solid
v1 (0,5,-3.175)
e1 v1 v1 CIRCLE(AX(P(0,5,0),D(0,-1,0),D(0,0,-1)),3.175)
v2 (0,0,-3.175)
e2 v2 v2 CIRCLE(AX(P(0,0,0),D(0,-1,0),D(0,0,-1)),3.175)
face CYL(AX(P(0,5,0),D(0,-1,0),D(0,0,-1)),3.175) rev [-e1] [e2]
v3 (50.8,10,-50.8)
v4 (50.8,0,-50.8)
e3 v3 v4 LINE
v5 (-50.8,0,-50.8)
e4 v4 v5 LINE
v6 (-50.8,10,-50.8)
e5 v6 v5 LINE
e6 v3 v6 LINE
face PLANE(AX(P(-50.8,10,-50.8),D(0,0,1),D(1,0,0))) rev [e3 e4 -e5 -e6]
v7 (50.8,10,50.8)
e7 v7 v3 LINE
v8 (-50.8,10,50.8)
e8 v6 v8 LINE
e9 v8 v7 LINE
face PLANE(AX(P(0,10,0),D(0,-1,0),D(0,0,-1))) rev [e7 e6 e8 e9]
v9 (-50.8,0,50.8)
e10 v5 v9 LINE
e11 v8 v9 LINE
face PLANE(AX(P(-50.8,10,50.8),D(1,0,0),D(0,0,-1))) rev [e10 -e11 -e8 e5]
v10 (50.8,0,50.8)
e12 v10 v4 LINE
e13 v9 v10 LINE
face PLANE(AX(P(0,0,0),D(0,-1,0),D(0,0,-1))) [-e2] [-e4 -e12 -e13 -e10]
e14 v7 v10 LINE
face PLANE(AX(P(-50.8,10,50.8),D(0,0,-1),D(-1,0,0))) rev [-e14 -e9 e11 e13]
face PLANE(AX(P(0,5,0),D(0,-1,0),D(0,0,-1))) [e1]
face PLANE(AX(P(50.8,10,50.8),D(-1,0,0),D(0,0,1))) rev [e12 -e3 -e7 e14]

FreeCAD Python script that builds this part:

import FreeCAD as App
import Part
import Sketcher

V = App.Vector

doc = App.newDocument("Part")
body = doc.addObject("PartDesign::Body", "Body")

sketch1 = body.newObject("Sketcher::SketchObject", "Sketch")
sketch1.AttachmentSupport = (doc.getObject("XZ_Plane"), [""])
sketch1.MapMode = "FlatFace"
sketch1.addGeometry([
    Part.LineSegment(V(-50.8, -50.8, 0), V(-50.8, 50.8, 0)),
    Part.LineSegment(V(-50.8, 50.8, 0), V(50.8, 50.8, 0)),
    Part.LineSegment(V(50.8, 50.8, 0), V(50.8, -50.8, 0)),
    Part.LineSegment(V(50.8, -50.8, 0), V(-50.8, -50.8, 0)),
], False)
sketch1.addConstraint([
    Sketcher.Constraint("Coincident", 0, 2, 1, 1),
    Sketcher.Constraint("Coincident", 1, 2, 2, 1),
    Sketcher.Constraint("Coincident", 2, 2, 3, 1),
    Sketcher.Constraint("Coincident", 3, 2, 0, 1),
    Sketcher.Constraint("Vertical", 0),
    Sketcher.Constraint("Horizontal", 1),
    Sketcher.Constraint("Vertical", 2),
    Sketcher.Constraint("Horizontal", 3),
    Sketcher.Constraint("Symmetric", 0, 2, 2, 2, -1, 1),
    Sketcher.Constraint("Equal", 3, 0),
    Sketcher.Constraint("DistanceX", 1, 1, 1, 2, 101.6),
])
pad1 = body.newObject("PartDesign::Pad", "Pad")
pad1.Profile = sketch1
pad1.Length = 10
pad1.Reversed = True

sketch2 = body.newObject("Sketcher::SketchObject", "Sketch001")
sketch2.AttachmentSupport = (doc.getObject("XZ_Plane"), [""])
sketch2.MapMode = "FlatFace"
sketch2.addGeometry(Part.Circle(V(0, 0, 0), V(0, 0, 1), 3.175), False)
sketch2.addConstraint([
    Sketcher.Constraint("Coincident", 0, 3, -1, 1),
    Sketcher.Constraint("Diameter", 0, 6.35),
])
pocket1 = body.newObject("PartDesign::Pocket", "Pocket")
pocket1.Profile = sketch2
pocket1.Length = 5

doc.recompute()
